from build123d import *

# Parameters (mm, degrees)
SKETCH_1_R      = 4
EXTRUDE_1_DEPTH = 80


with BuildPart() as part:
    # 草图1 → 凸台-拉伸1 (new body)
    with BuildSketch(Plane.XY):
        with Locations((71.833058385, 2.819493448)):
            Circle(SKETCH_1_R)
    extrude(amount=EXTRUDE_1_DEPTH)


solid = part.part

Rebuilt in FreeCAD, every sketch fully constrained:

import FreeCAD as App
import Part
import Sketcher

V = App.Vector
Q = App.Units.Quantity

doc = App.newDocument("Part")
body = doc.addObject("PartDesign::Body", "Body")

# Sketch on XY plane
sketch1 = doc.addObject("Sketcher::SketchObject", "Sketch")
body.addObject(sketch1)
sketch1.AttachmentSupport = (doc.XY_Plane, [""])
sketch1.MapMode = "FlatFace"
sketch1.addGeometry(Part.Circle(V(71.8, 2.8, 0), V(0, 0, 1), 4), False)
sketch1.addConstraint([
    Sketcher.Constraint("Diameter", 0, Q("8 mm")),
    Sketcher.Constraint("DistanceX", -1, 1, 0, 3, Q("71.833058 mm")),
    Sketcher.Constraint("DistanceY", -1, 1, 0, 3, Q("2.819493 mm")),
])
pad1 = doc.addObject("PartDesign::Pad", "Pad")
body.addObject(pad1)
pad1.Profile = sketch1
pad1.Length = 80

doc.recompute()
